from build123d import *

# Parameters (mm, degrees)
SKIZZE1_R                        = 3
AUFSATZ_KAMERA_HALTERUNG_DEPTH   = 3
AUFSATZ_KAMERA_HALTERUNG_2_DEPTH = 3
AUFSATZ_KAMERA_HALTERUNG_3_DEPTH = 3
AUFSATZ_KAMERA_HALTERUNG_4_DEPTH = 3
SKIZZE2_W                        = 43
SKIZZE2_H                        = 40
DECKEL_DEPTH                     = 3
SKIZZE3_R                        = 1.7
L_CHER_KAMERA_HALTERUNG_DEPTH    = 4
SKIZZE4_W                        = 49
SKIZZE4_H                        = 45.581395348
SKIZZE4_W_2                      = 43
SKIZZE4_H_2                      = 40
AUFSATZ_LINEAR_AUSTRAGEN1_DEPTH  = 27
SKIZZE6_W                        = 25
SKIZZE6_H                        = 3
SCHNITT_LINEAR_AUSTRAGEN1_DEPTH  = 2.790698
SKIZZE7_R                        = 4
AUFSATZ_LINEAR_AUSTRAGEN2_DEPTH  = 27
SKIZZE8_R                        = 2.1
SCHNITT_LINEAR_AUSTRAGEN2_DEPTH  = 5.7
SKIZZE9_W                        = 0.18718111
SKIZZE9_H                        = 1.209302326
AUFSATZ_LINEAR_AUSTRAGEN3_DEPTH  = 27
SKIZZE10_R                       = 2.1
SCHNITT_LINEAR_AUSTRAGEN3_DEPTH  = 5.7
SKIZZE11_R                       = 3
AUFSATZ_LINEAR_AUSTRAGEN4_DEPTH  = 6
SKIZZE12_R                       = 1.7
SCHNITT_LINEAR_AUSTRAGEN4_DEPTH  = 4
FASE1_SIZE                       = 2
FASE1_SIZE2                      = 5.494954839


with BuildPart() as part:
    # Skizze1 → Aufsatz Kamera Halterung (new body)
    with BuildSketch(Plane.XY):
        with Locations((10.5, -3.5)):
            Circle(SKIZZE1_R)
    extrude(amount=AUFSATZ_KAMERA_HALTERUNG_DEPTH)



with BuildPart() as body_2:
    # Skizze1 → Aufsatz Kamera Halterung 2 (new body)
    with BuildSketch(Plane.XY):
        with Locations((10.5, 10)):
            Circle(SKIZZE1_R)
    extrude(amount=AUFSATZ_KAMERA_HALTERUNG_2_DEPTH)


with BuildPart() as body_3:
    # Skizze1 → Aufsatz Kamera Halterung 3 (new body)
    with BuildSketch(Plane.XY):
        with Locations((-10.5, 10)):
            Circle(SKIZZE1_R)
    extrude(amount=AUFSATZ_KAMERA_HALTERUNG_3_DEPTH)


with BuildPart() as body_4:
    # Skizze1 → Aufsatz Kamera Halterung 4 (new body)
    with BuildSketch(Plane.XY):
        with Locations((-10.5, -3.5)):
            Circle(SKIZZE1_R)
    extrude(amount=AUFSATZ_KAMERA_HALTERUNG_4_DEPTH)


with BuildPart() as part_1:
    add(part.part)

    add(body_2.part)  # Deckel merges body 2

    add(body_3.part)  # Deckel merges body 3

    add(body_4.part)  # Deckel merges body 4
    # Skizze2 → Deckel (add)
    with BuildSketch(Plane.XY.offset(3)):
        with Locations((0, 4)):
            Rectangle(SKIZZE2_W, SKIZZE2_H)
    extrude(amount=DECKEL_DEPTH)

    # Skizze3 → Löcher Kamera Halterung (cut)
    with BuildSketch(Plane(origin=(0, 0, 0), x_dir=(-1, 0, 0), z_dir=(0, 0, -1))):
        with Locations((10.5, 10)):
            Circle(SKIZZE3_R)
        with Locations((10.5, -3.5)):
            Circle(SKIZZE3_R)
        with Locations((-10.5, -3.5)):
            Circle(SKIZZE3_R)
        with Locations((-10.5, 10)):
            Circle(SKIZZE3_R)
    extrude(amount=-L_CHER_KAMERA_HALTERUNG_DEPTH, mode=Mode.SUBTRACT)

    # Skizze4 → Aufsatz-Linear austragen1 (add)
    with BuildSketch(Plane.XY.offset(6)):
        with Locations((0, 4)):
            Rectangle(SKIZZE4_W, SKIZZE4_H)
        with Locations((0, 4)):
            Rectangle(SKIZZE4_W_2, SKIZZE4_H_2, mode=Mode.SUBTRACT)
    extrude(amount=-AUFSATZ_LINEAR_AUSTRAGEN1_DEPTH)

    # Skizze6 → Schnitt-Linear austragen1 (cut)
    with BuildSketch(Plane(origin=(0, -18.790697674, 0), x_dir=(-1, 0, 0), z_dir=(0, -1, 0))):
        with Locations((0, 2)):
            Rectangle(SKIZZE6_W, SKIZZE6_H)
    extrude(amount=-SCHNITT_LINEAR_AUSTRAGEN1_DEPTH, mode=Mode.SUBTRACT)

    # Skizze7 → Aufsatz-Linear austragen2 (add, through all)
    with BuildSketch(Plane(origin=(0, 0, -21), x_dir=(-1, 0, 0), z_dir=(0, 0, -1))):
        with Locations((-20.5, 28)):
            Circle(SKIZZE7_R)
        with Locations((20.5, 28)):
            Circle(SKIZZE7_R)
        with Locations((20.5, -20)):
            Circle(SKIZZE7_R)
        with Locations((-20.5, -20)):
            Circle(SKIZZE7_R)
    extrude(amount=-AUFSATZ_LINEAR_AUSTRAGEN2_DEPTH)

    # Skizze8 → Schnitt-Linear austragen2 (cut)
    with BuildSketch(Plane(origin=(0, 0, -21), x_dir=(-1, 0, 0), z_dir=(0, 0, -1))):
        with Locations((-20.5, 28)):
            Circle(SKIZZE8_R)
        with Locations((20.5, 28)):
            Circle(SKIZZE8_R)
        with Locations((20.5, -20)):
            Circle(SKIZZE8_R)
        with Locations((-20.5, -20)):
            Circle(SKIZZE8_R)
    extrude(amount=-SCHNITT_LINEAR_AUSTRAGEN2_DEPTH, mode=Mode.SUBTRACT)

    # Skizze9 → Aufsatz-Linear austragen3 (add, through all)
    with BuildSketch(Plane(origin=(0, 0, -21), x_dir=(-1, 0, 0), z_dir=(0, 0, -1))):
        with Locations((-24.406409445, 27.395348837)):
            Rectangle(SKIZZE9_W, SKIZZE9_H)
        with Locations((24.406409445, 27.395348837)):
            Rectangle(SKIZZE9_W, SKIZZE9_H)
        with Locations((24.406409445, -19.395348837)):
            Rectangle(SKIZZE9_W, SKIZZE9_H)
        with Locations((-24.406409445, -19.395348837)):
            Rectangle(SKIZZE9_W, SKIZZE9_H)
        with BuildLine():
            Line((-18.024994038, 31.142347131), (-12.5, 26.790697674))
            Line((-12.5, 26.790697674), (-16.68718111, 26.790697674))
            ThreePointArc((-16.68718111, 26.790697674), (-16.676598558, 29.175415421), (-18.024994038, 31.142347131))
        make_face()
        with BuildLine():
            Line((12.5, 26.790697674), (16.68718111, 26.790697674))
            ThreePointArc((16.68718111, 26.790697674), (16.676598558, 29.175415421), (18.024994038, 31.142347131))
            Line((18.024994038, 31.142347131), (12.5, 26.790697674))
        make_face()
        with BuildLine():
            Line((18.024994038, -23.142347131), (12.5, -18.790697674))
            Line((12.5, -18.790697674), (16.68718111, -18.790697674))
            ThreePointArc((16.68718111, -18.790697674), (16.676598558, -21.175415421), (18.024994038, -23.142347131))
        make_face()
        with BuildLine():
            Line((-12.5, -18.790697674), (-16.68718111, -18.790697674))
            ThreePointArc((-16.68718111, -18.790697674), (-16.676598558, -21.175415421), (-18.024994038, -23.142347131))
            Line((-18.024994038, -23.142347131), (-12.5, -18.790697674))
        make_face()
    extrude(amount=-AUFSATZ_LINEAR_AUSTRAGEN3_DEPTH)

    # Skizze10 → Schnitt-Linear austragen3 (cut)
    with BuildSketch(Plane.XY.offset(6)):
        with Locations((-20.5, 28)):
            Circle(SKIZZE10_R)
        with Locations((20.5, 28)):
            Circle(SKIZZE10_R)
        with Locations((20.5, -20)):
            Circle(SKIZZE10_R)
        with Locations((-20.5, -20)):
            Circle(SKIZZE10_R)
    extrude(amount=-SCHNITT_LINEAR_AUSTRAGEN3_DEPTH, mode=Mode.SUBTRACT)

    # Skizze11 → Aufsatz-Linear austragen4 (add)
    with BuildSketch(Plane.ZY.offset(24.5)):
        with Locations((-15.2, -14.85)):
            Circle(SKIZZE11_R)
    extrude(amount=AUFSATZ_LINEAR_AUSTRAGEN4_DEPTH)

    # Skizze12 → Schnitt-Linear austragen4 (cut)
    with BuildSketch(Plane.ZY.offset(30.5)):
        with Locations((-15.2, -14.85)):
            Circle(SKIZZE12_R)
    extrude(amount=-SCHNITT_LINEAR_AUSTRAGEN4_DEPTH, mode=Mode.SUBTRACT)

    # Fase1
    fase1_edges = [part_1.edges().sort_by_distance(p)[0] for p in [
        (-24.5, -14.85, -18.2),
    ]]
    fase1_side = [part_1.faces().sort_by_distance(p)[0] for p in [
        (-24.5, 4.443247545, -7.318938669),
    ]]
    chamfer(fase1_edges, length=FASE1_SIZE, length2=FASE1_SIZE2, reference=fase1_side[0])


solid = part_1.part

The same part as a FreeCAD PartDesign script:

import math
import FreeCAD as App
import Part
import Sketcher
from FreeCAD import Vector


def edges_at(feature, points):
    """Names of the edges that pass closest to the given points."""
    edges = feature.Shape.Edges
    near = lambda p: min(range(len(edges)), key=lambda i: edges[i].distToShape(Part.Vertex(*p))[0])
    return sorted({f"Edge{near(p) + 1}" for p in points})

doc = App.newDocument("Part")
body = doc.addObject("PartDesign::Body", "Body")

sketch1 = body.newObject("Sketcher::SketchObject", "Sketch")
sketch1.AttachmentSupport = (doc.getObject("XY_Plane"), [""])
sketch1.MapMode = "FlatFace"
sketch1.addGeometry(Part.Circle(Vector(10.5, -3.5, 0), Vector(0, 0, 1), 3), False)
sketch1.addConstraint(Sketcher.Constraint("Diameter", 0, 6.0))
sketch1.addConstraint(Sketcher.Constraint("DistanceX", -1, 1, 0, 3, 10.5))
sketch1.addConstraint(Sketcher.Constraint("DistanceY", 0, 3, -1, 1, 3.5))
pad1 = body.newObject("PartDesign::Pad", "Pad")
pad1.Profile = sketch1
pad1.Length = 3
body2 = doc.addObject("PartDesign::Body", "Body001")

sketch2 = body2.newObject("Sketcher::SketchObject", "Sketch001")
sketch2.AttachmentSupport = (doc.getObject("XY_Plane001"), [""])
sketch2.MapMode = "FlatFace"
sketch2.addGeometry(Part.Circle(Vector(10.5, 10, 0), Vector(0, 0, 1), 3), False)
sketch2.addConstraint(Sketcher.Constraint("Diameter", 0, 6.0))
sketch2.addConstraint(Sketcher.Constraint("DistanceY", -1, 1, 0, 3, 10.0))
sketch2.addConstraint(Sketcher.Constraint("DistanceX", -1, 1, 0, 3, 10.5))
pad2 = body2.newObject("PartDesign::Pad", "Pad001")
pad2.Profile = sketch2
pad2.Length = 3
body3 = doc.addObject("PartDesign::Body", "Body002")

sketch3 = body3.newObject("Sketcher::SketchObject", "Sketch002")
sketch3.AttachmentSupport = (doc.getObject("XY_Plane002"), [""])
sketch3.MapMode = "FlatFace"
sketch3.addGeometry(Part.Circle(Vector(-10.5, 10, 0), Vector(0, 0, 1), 3), False)
sketch3.addConstraint(Sketcher.Constraint("Diameter", 0, 6.0))
sketch3.addConstraint(Sketcher.Constraint("DistanceY", -1, 1, 0, 3, 10.0))
sketch3.addConstraint(Sketcher.Constraint("DistanceX", 0, 3, -1, 1, 10.5))
pad3 = body3.newObject("PartDesign::Pad", "Pad002")
pad3.Profile = sketch3
pad3.Length = 3
body4 = doc.addObject("PartDesign::Body", "Body003")

sketch4 = body4.newObject("Sketcher::SketchObject", "Sketch003")
sketch4.AttachmentSupport = (doc.getObject("XY_Plane003"), [""])
sketch4.MapMode = "FlatFace"
sketch4.addGeometry(Part.Circle(Vector(-10.5, -3.5, 0), Vector(0, 0, 1), 3), False)
sketch4.addConstraint(Sketcher.Constraint("Diameter", 0, 6.0))
sketch4.addConstraint(Sketcher.Constraint("DistanceX", 0, 3, -1, 1, 10.5))
sketch4.addConstraint(Sketcher.Constraint("DistanceY", 0, 3, -1, 1, 3.5))
pad4 = body4.newObject("PartDesign::Pad", "Pad003")
pad4.Profile = sketch4
pad4.Length = 3
body.AllowCompound = True
doc.recompute()

boolean = body.newObject("PartDesign::Boolean", "Boolean")
boolean.Type = "Fuse"
boolean.addObjects([body2])
doc.recompute()

boolean2 = body.newObject("PartDesign::Boolean", "Boolean001")
boolean2.Type = "Fuse"
boolean2.addObjects([body3])
doc.recompute()

boolean3 = body.newObject("PartDesign::Boolean", "Boolean002")
boolean3.Type = "Fuse"
boolean3.addObjects([body4])

sketch5 = body.newObject("Sketcher::SketchObject", "Sketch004")
sketch5.AttachmentSupport = (doc.getObject("XY_Plane"), [""])
sketch5.MapMode = "FlatFace"
sketch5.AttachmentOffset = App.Placement(Vector(0, 0, 3), App.Rotation())
sketch5.addGeometry(Part.LineSegment(Vector(-21.5, 24, 0), Vector(-21.5, -16, 0)), False)
sketch5.addGeometry(Part.LineSegment(Vector(-21.5, -16, 0), Vector(21.5, -16, 0)), False)
sketch5.addGeometry(Part.LineSegment(Vector(21.5, -16, 0), Vector(21.5, 24, 0)), False)
sketch5.addGeometry(Part.LineSegment(Vector(21.5, 24, 0), Vector(-21.5, 24, 0)), False)
sketch5.addConstraint(Sketcher.Constraint("Coincident", 0, 2, 1, 1))
sketch5.addConstraint(Sketcher.Constraint("Coincident", 1, 2, 2, 1))
sketch5.addConstraint(Sketcher.Constraint("Coincident", 2, 2, 3, 1))
sketch5.addConstraint(Sketcher.Constraint("Coincident", 3, 2, 0, 1))
sketch5.addConstraint(Sketcher.Constraint("Vertical", 0))
sketch5.addConstraint(Sketcher.Constraint("Horizontal", 1))
sketch5.addConstraint(Sketcher.Constraint("Vertical", 2))
sketch5.addConstraint(Sketcher.Constraint("Horizontal", 3))
sketch5.addConstraint(Sketcher.Constraint("DistanceX", 1, 1, 1, 2, 43.0))
sketch5.addConstraint(Sketcher.Constraint("DistanceY", 0, 2, 0, 1, 40.0))
sketch5.addConstraint(Sketcher.Constraint("DistanceY", 0, 2, -1, 1, 16.0))
sketch5.addConstraint(Sketcher.Constraint("DistanceX", 0, 2, -1, 1, 21.5))
pad5 = body.newObject("PartDesign::Pad", "Pad004")
pad5.Profile = sketch5
pad5.Length = 3

sketch6 = body.newObject("Sketcher::SketchObject", "Sketch005")
sketch6.AttachmentSupport = (doc.getObject("XY_Plane"), [""])
sketch6.MapMode = "FlatFace"
sketch6.addGeometry(Part.Circle(Vector(-10.5, 10, 0), Vector(0, 0, 1), 1.7), False)
sketch6.addGeometry(Part.Circle(Vector(-10.5, -3.5, 0), Vector(0, 0, 1), 1.7), False)
sketch6.addGeometry(Part.Circle(Vector(10.5, -3.5, 0), Vector(0, 0, 1), 1.7), False)
sketch6.addGeometry(Part.Circle(Vector(10.5, 10, 0), Vector(0, 0, 1), 1.7), False)
sketch6.addConstraint(Sketcher.Constraint("Equal", 0, 1))
sketch6.addConstraint(Sketcher.Constraint("Equal", 1, 2))
sketch6.addConstraint(Sketcher.Constraint("Equal", 2, 3))
sketch6.addConstraint(Sketcher.Constraint("Symmetric", 1, 3, 2, 3, -2))
sketch6.addConstraint(Sketcher.Constraint("Symmetric", 0, 3, 3, 3, -2))
sketch6.addConstraint(Sketcher.Constraint("Vertical", 0, 3, 1, 3))
sketch6.addConstraint(Sketcher.Constraint("Diameter", 0, 3.4))
sketch6.addConstraint(Sketcher.Constraint("DistanceY", -1, 1, 0, 3, 10.0))
sketch6.addConstraint(Sketcher.Constraint("DistanceX", 1, 3, 2, 3, 21.0))
sketch6.addConstraint(Sketcher.Constraint("DistanceY", 1, 3, -1, 1, 3.5))
pocket1 = body.newObject("PartDesign::Pocket", "Pocket")
pocket1.Profile = sketch6
pocket1.Length = 4
pocket1.Reversed = True

sketch7 = body.newObject("Sketcher::SketchObject", "Sketch006")
sketch7.AttachmentSupport = (doc.getObject("XY_Plane"), [""])
sketch7.MapMode = "FlatFace"
sketch7.AttachmentOffset = App.Placement(Vector(0, 0, 6), App.Rotation())
sketch7.addGeometry(Part.LineSegment(Vector(-24.5, 26.790698, 0), Vector(-24.5, -18.790698, 0)), False)
sketch7.addGeometry(Part.LineSegment(Vector(-24.5, -18.790698, 0), Vector(24.5, -18.790698, 0)), False)
sketch7.addGeometry(Part.LineSegment(Vector(24.5, -18.790698, 0), Vector(24.5, 26.790698, 0)), False)
sketch7.addGeometry(Part.LineSegment(Vector(24.5, 26.790698, 0), Vector(-24.5, 26.790698, 0)), False)
sketch7.addGeometry(Part.LineSegment(Vector(21.5, -16, 0), Vector(-21.5, -16, 0)), False)
sketch7.addGeometry(Part.LineSegment(Vector(-21.5, -16, 0), Vector(-21.5, 24, 0)), False)
sketch7.addGeometry(Part.LineSegment(Vector(-21.5, 24, 0), Vector(21.5, 24, 0)), False)
sketch7.addGeometry(Part.LineSegment(Vector(21.5, 24, 0), Vector(21.5, -16, 0)), False)
sketch7.addConstraint(Sketcher.Constraint("Coincident", 0, 2, 1, 1))
sketch7.addConstraint(Sketcher.Constraint("Coincident", 1, 2, 2, 1))
sketch7.addConstraint(Sketcher.Constraint("Coincident", 2, 2, 3, 1))
sketch7.addConstraint(Sketcher.Constraint("Coincident", 3, 2, 0, 1))
sketch7.addConstraint(Sketcher.Constraint("Coincident", 4, 2, 5, 1))
sketch7.addConstraint(Sketcher.Constraint("Coincident", 5, 2, 6, 1))
sketch7.addConstraint(Sketcher.Constraint("Coincident", 6, 2, 7, 1))
sketch7.addConstraint(Sketcher.Constraint("Coincident", 7, 2, 4, 1))
sketch7.addConstraint(Sketcher.Constraint("Vertical", 0))
sketch7.addConstraint(Sketcher.Constraint("Horizontal", 1))
sketch7.addConstraint(Sketcher.Constraint("Vertical", 2))
sketch7.addConstraint(Sketcher.Constraint("Horizontal", 3))
sketch7.addConstraint(Sketcher.Constraint("Horizontal", 4))
sketch7.addConstraint(Sketcher.Constraint("Vertical", 5))
sketch7.addConstraint(Sketcher.Constraint("Horizontal", 6))
sketch7.addConstraint(Sketcher.Constraint("Vertical", 7))
sketch7.addConstraint(Sketcher.Constraint("DistanceX", 1, 1, 1, 2, 49.0))
sketch7.addConstraint(Sketcher.Constraint("DistanceX", 4, 2, 4, 1, 43.0))
sketch7.addConstraint(Sketcher.Constraint("DistanceY", 5, 1, 5, 2, 40.0))
sketch7.addConstraint(Sketcher.Constraint("DistanceY", 4, 2, -1, 1, 16.0))
sketch7.addConstraint(Sketcher.Constraint("DistanceX", 0, 2, 4, 2, 3.0))
sketch7.addConstraint(Sketcher.Constraint("DistanceX", 0, 2, -1, 1, 24.5))
sketch7.addConstraint(Sketcher.Constraint("DistanceY", 0, 2, 0, 1, 45.581395))
sketch7.addConstraint(Sketcher.Constraint("DistanceY", 0, 2, -1, 1, 18.790698))
pad6 = body.newObject("PartDesign::Pad", "Pad005")
pad6.Profile = sketch7
pad6.Length = 27
pad6.Reversed = True

sketch8 = body.newObject("Sketcher::SketchObject", "Sketch007")
sketch8.AttachmentSupport = (doc.getObject("XZ_Plane"), [""])
sketch8.MapMode = "FlatFace"
sketch8.AttachmentOffset = App.Placement(Vector(0, 0, 18.790698), App.Rotation())
sketch8.addGeometry(Part.LineSegment(Vector(12.5, -3.5, 0), Vector(12.5, -0.5, 0)), False)
sketch8.addGeometry(Part.LineSegment(Vector(12.5, -0.5, 0), Vector(-12.5, -0.5, 0)), False)
sketch8.addGeometry(Part.LineSegment(Vector(-12.5, -0.5, 0), Vector(-12.5, -3.5, 0)), False)
sketch8.addGeometry(Part.LineSegment(Vector(-12.5, -3.5, 0), Vector(12.5, -3.5, 0)), False)
sketch8.addConstraint(Sketcher.Constraint("Coincident", 0, 2, 1, 1))
sketch8.addConstraint(Sketcher.Constraint("Coincident", 1, 2, 2, 1))
sketch8.addConstraint(Sketcher.Constraint("Coincident", 2, 2, 3, 1))
sketch8.addConstraint(Sketcher.Constraint("Coincident", 3, 2, 0, 1))
sketch8.addConstraint(Sketcher.Constraint("Vertical", 0))
sketch8.addConstraint(Sketcher.Constraint("Horizontal", 1))
sketch8.addConstraint(Sketcher.Constraint("Vertical", 2))
sketch8.addConstraint(Sketcher.Constraint("Horizontal", 3))
sketch8.addConstraint(Sketcher.Constraint("DistanceX", 1, 2, 1, 1, 25.0))
sketch8.addConstraint(Sketcher.Constraint("DistanceY", 0, 1, 0, 2, 3.0))
sketch8.addConstraint(Sketcher.Constraint("DistanceX", -1, 1, 0, 2, 12.5))
sketch8.addConstraint(Sketcher.Constraint("DistanceY", 0, 2, -1, 1, 0.5))
pocket2 = body.newObject("PartDesign::Pocket", "Pocket001")
pocket2.Profile = sketch8
pocket2.Length = 2.790698

sketch9 = body.newObject("Sketcher::SketchObject", "Sketch008")
sketch9.AttachmentSupport = (doc.getObject("XY_Plane"), [""])
sketch9.MapMode = "FlatFace"
sketch9.AttachmentOffset = App.Placement(Vector(0, 0, -21), App.Rotation())
sketch9.addGeometry(Part.Circle(Vector(20.5, 28, 0), Vector(0, 0, 1), 4), False)
sketch9.addGeometry(Part.Circle(Vector(-20.5, 28, 0), Vector(0, 0, 1), 4), False)
sketch9.addGeometry(Part.Circle(Vector(-20.5, -20, 0), Vector(0, 0, 1), 4), False)
sketch9.addGeometry(Part.Circle(Vector(20.5, -20, 0), Vector(0, 0, 1), 4), False)
sketch9.addConstraint(Sketcher.Constraint("Equal", 0, 1))
sketch9.addConstraint(Sketcher.Constraint("Equal", 1, 2))
sketch9.addConstraint(Sketcher.Constraint("Equal", 2, 3))
sketch9.addConstraint(Sketcher.Constraint("Symmetric", 0, 3, 1, 3, -2))
sketch9.addConstraint(Sketcher.Constraint("Symmetric", 2, 3, 3, 3, -2))
sketch9.addConstraint(Sketcher.Constraint("Vertical", 1, 3, 2, 3))
sketch9.addConstraint(Sketcher.Constraint("Diameter", 0, 8.0))
sketch9.addConstraint(Sketcher.Constraint("DistanceY", -1, 1, 0, 3, 28.0))
sketch9.addConstraint(Sketcher.Constraint("DistanceY", 2, 3, -1, 1, 20.0))
sketch9.addConstraint(Sketcher.Constraint("DistanceX", 1, 3, 0, 3, 41.0))
pad7 = body.newObject("PartDesign::Pad", "Pad006")
pad7.Profile = sketch9
pad7.Type = "UpToLast"

sketch10 = body.newObject("Sketcher::SketchObject", "Sketch009")
sketch10.AttachmentSupport = (doc.getObject("XY_Plane"), [""])
sketch10.MapMode = "FlatFace"
sketch10.AttachmentOffset = App.Placement(Vector(0, 0, -21), App.Rotation())
sketch10.addGeometry(Part.Circle(Vector(20.5, 28, 0), Vector(0, 0, 1), 2.1), False)
sketch10.addGeometry(Part.Circle(Vector(-20.5, 28, 0), Vector(0, 0, 1), 2.1), False)
sketch10.addGeometry(Part.Circle(Vector(-20.5, -20, 0), Vector(0, 0, 1), 2.1), False)
sketch10.addGeometry(Part.Circle(Vector(20.5, -20, 0), Vector(0, 0, 1), 2.1), False)
sketch10.addConstraint(Sketcher.Constraint("Equal", 0, 1))
sketch10.addConstraint(Sketcher.Constraint("Equal", 1, 2))
sketch10.addConstraint(Sketcher.Constraint("Equal", 2, 3))
sketch10.addConstraint(Sketcher.Constraint("Symmetric", 0, 3, 1, 3, -2))
sketch10.addConstraint(Sketcher.Constraint("Symmetric", 2, 3, 3, 3, -2))
sketch10.addConstraint(Sketcher.Constraint("Vertical", 1, 3, 2, 3))
sketch10.addConstraint(Sketcher.Constraint("Diameter", 0, 4.2))
sketch10.addConstraint(Sketcher.Constraint("DistanceY", -1, 1, 0, 3, 28.0))
sketch10.addConstraint(Sketcher.Constraint("DistanceY", 2, 3, -1, 1, 20.0))
sketch10.addConstraint(Sketcher.Constraint("DistanceX", 1, 3, 0, 3, 41.0))
pocket3 = body.newObject("PartDesign::Pocket", "Pocket002")
pocket3.Profile = sketch10
pocket3.Length = 5.7
pocket3.Reversed = True

sketch11 = body.newObject("Sketcher::SketchObject", "Sketch010")
sketch11.AttachmentSupport = (doc.getObject("XY_Plane"), [""])
sketch11.MapMode = "FlatFace"
sketch11.AttachmentOffset = App.Placement(Vector(0, 0, -21), App.Rotation())
sketch11.addGeometry(Part.LineSegment(Vector(24.5, 28, 0), Vector(24.5, 26.790698, 0)), False)
sketch11.addGeometry(Part.LineSegment(Vector(24.5, 26.790698, 0), Vector(24.312819, 26.790698, 0)), False)
sketch11.addGeometry(Part.LineSegment(Vector(24.312819, 26.790698, 0), Vector(24.312819, 28, 0)), False)
sketch11.addGeometry(Part.LineSegment(Vector(24.312819, 28, 0), Vector(24.5, 28, 0)), False)
sketch11.addGeometry(Part.LineSegment(Vector(-24.312819, 28, 0), Vector(-24.312819, 26.790698, 0)), False)
sketch11.addGeometry(Part.LineSegment(Vector(-24.312819, 26.790698, 0), Vector(-24.5, 26.790698, 0)), False)
sketch11.addGeometry(Part.LineSegment(Vector(-24.5, 26.790698, 0), Vector(-24.5, 28, 0)), False)
sketch11.addGeometry(Part.LineSegment(Vector(-24.5, 28, 0), Vector(-24.312819, 28, 0)), False)
sketch11.addGeometry(Part.LineSegment(Vector(-24.312819, -18.790698, 0), Vector(-24.312819, -20, 0)), False)
sketch11.addGeometry(Part.LineSegment(Vector(-24.312819, -20, 0), Vector(-24.5, -20, 0)), False)
sketch11.addGeometry(Part.LineSegment(Vector(-24.5, -20, 0), Vector(-24.5, -18.790698, 0)), False)
sketch11.addGeometry(Part.LineSegment(Vector(-24.5, -18.790698, 0), Vector(-24.312819, -18.790698, 0)), False)
sketch11.addGeometry(Part.LineSegment(Vector(24.5, -18.790698, 0), Vector(24.5, -20, 0)), False)
sketch11.addGeometry(Part.LineSegment(Vector(24.5, -20, 0), Vector(24.312819, -20, 0)), False)
sketch11.addGeometry(Part.LineSegment(Vector(24.312819, -20, 0), Vector(24.312819, -18.790698, 0)), False)
sketch11.addGeometry(Part.LineSegment(Vector(24.312819, -18.790698, 0), Vector(24.5, -18.790698, 0)), False)
sketch11.addGeometry(Part.LineSegment(Vector(12.5, 26.790698, 0), Vector(18.024994, 31.142347, 0)), False)
sketch11.addGeometry(Part.ArcOfCircle(Part.Circle(Vector(20.5, 28, 0), Vector(0, 0, 1), 4), math.radians(128.225019), math.radians(197.597337)), False)
sketch11.addGeometry(Part.LineSegment(Vector(16.687181, 26.790698, 0), Vector(12.5, 26.790698, 0)), False)
sketch11.addGeometry(Part.LineSegment(Vector(-12.5, 26.790698, 0), Vector(-16.687181, 26.790698, 0)), False)
sketch11.addGeometry(Part.ArcOfCircle(Part.Circle(Vector(-20.5, 28, 0), Vector(0, 0, 1), 4), math.radians(-17.597337), math.radians(51.774981)), False)
sketch11.addGeometry(Part.LineSegment(Vector(-18.024994, 31.142347, 0), Vector(-12.5, 26.790698, 0)), False)
sketch11.addGeometry(Part.LineSegment(Vector(-12.5, -18.790698, 0), Vector(-18.024994, -23.142347, 0)), False)
sketch11.addGeometry(Part.ArcOfCircle(Part.Circle(Vector(-20.5, -20, 0), Vector(0, 0, 1), 4), math.radians(-51.774981), math.radians(17.597337)), False)
sketch11.addGeometry(Part.LineSegment(Vector(-16.687181, -18.790698, 0), Vector(-12.5, -18.790698, 0)), False)
sketch11.addGeometry(Part.LineSegment(Vector(12.5, -18.790698, 0), Vector(16.687181, -18.790698, 0)), False)
sketch11.addGeometry(Part.ArcOfCircle(Part.Circle(Vector(20.5, -20, 0), Vector(0, 0, 1), 4), math.radians(162.402663), math.radians(231.774981)), False)
sketch11.addGeometry(Part.LineSegment(Vector(18.024994, -23.142347, 0), Vector(12.5, -18.790698, 0)), False)
sketch11.addConstraint(Sketcher.Constraint("Coincident", 0, 2, 1, 1))
sketch11.addConstraint(Sketcher.Constraint("Coincident", 1, 2, 2, 1))
sketch11.addConstraint(Sketcher.Constraint("Coincident", 2, 2, 3, 1))
sketch11.addConstraint(Sketcher.Constraint("Coincident", 3, 2, 0, 1))
sketch11.addConstraint(Sketcher.Constraint("Coincident", 4, 2, 5, 1))
sketch11.addConstraint(Sketcher.Constraint("Coincident", 5, 2, 6, 1))
sketch11.addConstraint(Sketcher.Constraint("Coincident", 6, 2, 7, 1))
sketch11.addConstraint(Sketcher.Constraint("Coincident", 7, 2, 4, 1))
sketch11.addConstraint(Sketcher.Constraint("Coincident", 8, 2, 9, 1))
sketch11.addConstraint(Sketcher.Constraint("Coincident", 9, 2, 10, 1))
sketch11.addConstraint(Sketcher.Constraint("Coincident", 10, 2, 11, 1))
sketch11.addConstraint(Sketcher.Constraint("Coincident", 11, 2, 8, 1))
sketch11.addConstraint(Sketcher.Constraint("Coincident", 12, 2, 13, 1))
sketch11.addConstraint(Sketcher.Constraint("Coincident", 13, 2, 14, 1))
sketch11.addConstraint(Sketcher.Constraint("Coincident", 14, 2, 15, 1))
sketch11.addConstraint(Sketcher.Constraint("Coincident", 15, 2, 12, 1))
sketch11.addConstraint(Sketcher.Constraint("Tangent", 16, 2, 17, 1))
sketch11.addConstraint(Sketcher.Constraint("Coincident", 17, 2, 18, 1))
sketch11.addConstraint(Sketcher.Constraint("Coincident", 18, 2, 16, 1))
sketch11.addConstraint(Sketcher.Constraint("Coincident", 19, 2, 20, 1))
sketch11.addConstraint(Sketcher.Constraint("Tangent", 20, 2, 21, 1))
sketch11.addConstraint(Sketcher.Constraint("Coincident", 21, 2, 19, 1))
sketch11.addConstraint(Sketcher.Constraint("Tangent", 22, 2, 23, 1))
sketch11.addConstraint(Sketcher.Constraint("Coincident", 23, 2, 24, 1))
sketch11.addConstraint(Sketcher.Constraint("Coincident", 24, 2, 22, 1))
sketch11.addConstraint(Sketcher.Constraint("Coincident", 25, 2, 26, 1))
sketch11.addConstraint(Sketcher.Constraint("Tangent", 26, 2, 27, 1))
sketch11.addConstraint(Sketcher.Constraint("Coincident", 27, 2, 25, 1))
sketch11.addConstraint(Sketcher.Constraint("Vertical", 0))
sketch11.addConstraint(Sketcher.Constraint("Horizontal", 1))
sketch11.addConstraint(Sketcher.Constraint("Vertical", 2))
sketch11.addConstraint(Sketcher.Constraint("Horizontal", 3))
sketch11.addConstraint(Sketcher.Constraint("Vertical", 4))
sketch11.addConstraint(Sketcher.Constraint("Horizontal", 5))
sketch11.addConstraint(Sketcher.Constraint("Vertical", 6))
sketch11.addConstraint(Sketcher.Constraint("Horizontal", 7))
sketch11.addConstraint(Sketcher.Constraint("Vertical", 8))
sketch11.addConstraint(Sketcher.Constraint("Horizontal", 9))
sketch11.addConstraint(Sketcher.Constraint("Vertical", 10))
sketch11.addConstraint(Sketcher.Constraint("Horizontal", 11))
sketch11.addConstraint(Sketcher.Constraint("Vertical", 12))
sketch11.addConstraint(Sketcher.Constraint("Horizontal", 13))
sketch11.addConstraint(Sketcher.Constraint("Vertical", 14))
sketch11.addConstraint(Sketcher.Constraint("Horizontal", 15))
sketch11.addConstraint(Sketcher.Constraint("Horizontal", 18))
sketch11.addConstraint(Sketcher.Constraint("Horizontal", 19))
sketch11.addConstraint(Sketcher.Constraint("Horizontal", 24))
sketch11.addConstraint(Sketcher.Constraint("Horizontal", 25))
sketch11.addConstraint(Sketcher.Constraint("Equal", 17, 20))
sketch11.addConstraint(Sketcher.Constraint("Equal", 20, 23))
sketch11.addConstraint(Sketcher.Constraint("Equal", 23, 26))
sketch11.addConstraint(Sketcher.Constraint("Symmetric", 17, 3, 20, 3, -2))
sketch11.addConstraint(Sketcher.Constraint("Symmetric", 23, 3, 26, 3, -2))
sketch11.addConstraint(Sketcher.Constraint("Symmetric", 1, 2, 4, 2, -2))
sketch11.addConstraint(Sketcher.Constraint("Symmetric", 3, 2, 6, 2, -2))
sketch11.addConstraint(Sketcher.Constraint("Symmetric", 9, 2, 12, 2, -2))
sketch11.addConstraint(Sketcher.Constraint("Symmetric", 11, 2, 14, 2, -2))
sketch11.addConstraint(Sketcher.Constraint("Symmetric", 18, 2, 21, 2, -2))
sketch11.addConstraint(Sketcher.Constraint("Symmetric", 24, 2, 27, 2, -2))
sketch11.addConstraint(Sketcher.Constraint("Parallel", 16, 22))
sketch11.addConstraint(Sketcher.Constraint("Horizontal", 20, 3, 2, 2))
sketch11.addConstraint(Sketcher.Constraint("Horizontal", 26, 3, 8, 2))
sketch11.addConstraint(Sketcher.Constraint("Horizontal", 5, 2, 17, 2))
sketch11.addConstraint(Sketcher.Constraint("Horizontal", 15, 2, 23, 2))
sketch11.addConstraint(Sketcher.Constraint("Vertical", 20, 3, 23, 3))
sketch11.addConstraint(Sketcher.Constraint("Vertical", 7, 2, 8, 2))
sketch11.addConstraint(Sketcher.Constraint("Vertical", 6, 2, 9, 2))
sketch11.addConstraint(Sketcher.Constraint("Vertical", 19, 2, 23, 2))
sketch11.addConstraint(Sketcher.Constraint("Radius", 17, 4.0))
sketch11.addConstraint(Sketcher.Constraint("DistanceY", -1, 1, 17, 3, 28.0))
sketch11.addConstraint(Sketcher.Constraint("DistanceY", 23, 3, -1, 1, 20.0))
sketch11.addConstraint(Sketcher.Constraint("DistanceX", 20, 3, 17, 3, 41.0))
sketch11.addConstraint(Sketcher.Constraint("DistanceX", 17, 3, 0, 2, 4.0))
sketch11.addConstraint(Sketcher.Constraint("DistanceX", 18, 2, 17, 3, 8.0))
sketch11.addConstraint(Sketcher.Constraint("DistanceX", 1, 2, 1, 1, 0.187181))
sketch11.addConstraint(Sketcher.Constraint("DistanceX", 18, 2, 18, 1, 4.187181))
pad8 = body.newObject("PartDesign::Pad", "Pad007")
pad8.Profile = sketch11
pad8.Type = "UpToLast"

sketch12 = body.newObject("Sketcher::SketchObject", "Sketch011")
sketch12.AttachmentSupport = (doc.getObject("XY_Plane"), [""])
sketch12.MapMode = "FlatFace"
sketch12.AttachmentOffset = App.Placement(Vector(0, 0, 6), App.Rotation())
sketch12.addGeometry(Part.Circle(Vector(-20.5, 28, 0), Vector(0, 0, 1), 2.1), False)
sketch12.addGeometry(Part.Circle(Vector(20.5, 28, 0), Vector(0, 0, 1), 2.1), False)
sketch12.addGeometry(Part.Circle(Vector(20.5, -20, 0), Vector(0, 0, 1), 2.1), False)
sketch12.addGeometry(Part.Circle(Vector(-20.5, -20, 0), Vector(0, 0, 1), 2.1), False)
sketch12.addConstraint(Sketcher.Constraint("Equal", 0, 1))
sketch12.addConstraint(Sketcher.Constraint("Equal", 1, 2))
sketch12.addConstraint(Sketcher.Constraint("Equal", 2, 3))
sketch12.addConstraint(Sketcher.Constraint("Symmetric", 0, 3, 1, 3, -2))
sketch12.addConstraint(Sketcher.Constraint("Symmetric", 2, 3, 3, 3, -2))
sketch12.addConstraint(Sketcher.Constraint("Vertical", 1, 3, 2, 3))
sketch12.addConstraint(Sketcher.Constraint("Diameter", 0, 4.2))
sketch12.addConstraint(Sketcher.Constraint("DistanceY", -1, 1, 0, 3, 28.0))
sketch12.addConstraint(Sketcher.Constraint("DistanceY", 2, 3, -1, 1, 20.0))
sketch12.addConstraint(Sketcher.Constraint("DistanceX", 0, 3, 1, 3, 41.0))
pocket4 = body.newObject("PartDesign::Pocket", "Pocket003")
pocket4.Profile = sketch12
pocket4.Length = 5.7

sketch13 = body.newObject("Sketcher::SketchObject", "Sketch012")
sketch13.AttachmentSupport = (doc.getObject("YZ_Plane"), [""])
sketch13.MapMode = "FlatFace"
sketch13.AttachmentOffset = App.Placement(Vector(0, 0, -24.5), App.Rotation())
sketch13.addGeometry(Part.Circle(Vector(-14.85, -15.2, 0), Vector(0, 0, 1), 3), False)
sketch13.addConstraint(Sketcher.Constraint("Diameter", 0, 6.0))
sketch13.addConstraint(Sketcher.Constraint("DistanceY", 0, 3, -1, 1, 15.2))
sketch13.addConstraint(Sketcher.Constraint("DistanceX", 0, 3, -1, 1, 14.85))
pad9 = body.newObject("PartDesign::Pad", "Pad008")
pad9.Profile = sketch13
pad9.Length = 6
pad9.Reversed = True

sketch14 = body.newObject("Sketcher::SketchObject", "Sketch013")
sketch14.AttachmentSupport = (doc.getObject("YZ_Plane"), [""])
sketch14.MapMode = "FlatFace"
sketch14.AttachmentOffset = App.Placement(Vector(0, 0, -30.5), App.Rotation())
sketch14.addGeometry(Part.Circle(Vector(-14.85, -15.2, 0), Vector(0, 0, 1), 1.7), False)
sketch14.addConstraint(Sketcher.Constraint("Diameter", 0, 3.4))
sketch14.addConstraint(Sketcher.Constraint("DistanceY", 0, 3, -1, 1, 15.2))
sketch14.addConstraint(Sketcher.Constraint("DistanceX", 0, 3, -1, 1, 14.85))
pocket5 = body.newObject("PartDesign::Pocket", "Pocket004")
pocket5.Profile = sketch14
pocket5.Length = 4
pocket5.Reversed = True
doc.recompute()

chamfer = body.newObject("PartDesign::Chamfer", "Chamfer")
chamfer.Base = (pocket5, edges_at(pocket5, [(-24.5, -14.85, -18.2)]))
chamfer.ChamferType = "Two distances"
chamfer.Size = 2
chamfer.Size2 = 5.494955

doc.recompute()
